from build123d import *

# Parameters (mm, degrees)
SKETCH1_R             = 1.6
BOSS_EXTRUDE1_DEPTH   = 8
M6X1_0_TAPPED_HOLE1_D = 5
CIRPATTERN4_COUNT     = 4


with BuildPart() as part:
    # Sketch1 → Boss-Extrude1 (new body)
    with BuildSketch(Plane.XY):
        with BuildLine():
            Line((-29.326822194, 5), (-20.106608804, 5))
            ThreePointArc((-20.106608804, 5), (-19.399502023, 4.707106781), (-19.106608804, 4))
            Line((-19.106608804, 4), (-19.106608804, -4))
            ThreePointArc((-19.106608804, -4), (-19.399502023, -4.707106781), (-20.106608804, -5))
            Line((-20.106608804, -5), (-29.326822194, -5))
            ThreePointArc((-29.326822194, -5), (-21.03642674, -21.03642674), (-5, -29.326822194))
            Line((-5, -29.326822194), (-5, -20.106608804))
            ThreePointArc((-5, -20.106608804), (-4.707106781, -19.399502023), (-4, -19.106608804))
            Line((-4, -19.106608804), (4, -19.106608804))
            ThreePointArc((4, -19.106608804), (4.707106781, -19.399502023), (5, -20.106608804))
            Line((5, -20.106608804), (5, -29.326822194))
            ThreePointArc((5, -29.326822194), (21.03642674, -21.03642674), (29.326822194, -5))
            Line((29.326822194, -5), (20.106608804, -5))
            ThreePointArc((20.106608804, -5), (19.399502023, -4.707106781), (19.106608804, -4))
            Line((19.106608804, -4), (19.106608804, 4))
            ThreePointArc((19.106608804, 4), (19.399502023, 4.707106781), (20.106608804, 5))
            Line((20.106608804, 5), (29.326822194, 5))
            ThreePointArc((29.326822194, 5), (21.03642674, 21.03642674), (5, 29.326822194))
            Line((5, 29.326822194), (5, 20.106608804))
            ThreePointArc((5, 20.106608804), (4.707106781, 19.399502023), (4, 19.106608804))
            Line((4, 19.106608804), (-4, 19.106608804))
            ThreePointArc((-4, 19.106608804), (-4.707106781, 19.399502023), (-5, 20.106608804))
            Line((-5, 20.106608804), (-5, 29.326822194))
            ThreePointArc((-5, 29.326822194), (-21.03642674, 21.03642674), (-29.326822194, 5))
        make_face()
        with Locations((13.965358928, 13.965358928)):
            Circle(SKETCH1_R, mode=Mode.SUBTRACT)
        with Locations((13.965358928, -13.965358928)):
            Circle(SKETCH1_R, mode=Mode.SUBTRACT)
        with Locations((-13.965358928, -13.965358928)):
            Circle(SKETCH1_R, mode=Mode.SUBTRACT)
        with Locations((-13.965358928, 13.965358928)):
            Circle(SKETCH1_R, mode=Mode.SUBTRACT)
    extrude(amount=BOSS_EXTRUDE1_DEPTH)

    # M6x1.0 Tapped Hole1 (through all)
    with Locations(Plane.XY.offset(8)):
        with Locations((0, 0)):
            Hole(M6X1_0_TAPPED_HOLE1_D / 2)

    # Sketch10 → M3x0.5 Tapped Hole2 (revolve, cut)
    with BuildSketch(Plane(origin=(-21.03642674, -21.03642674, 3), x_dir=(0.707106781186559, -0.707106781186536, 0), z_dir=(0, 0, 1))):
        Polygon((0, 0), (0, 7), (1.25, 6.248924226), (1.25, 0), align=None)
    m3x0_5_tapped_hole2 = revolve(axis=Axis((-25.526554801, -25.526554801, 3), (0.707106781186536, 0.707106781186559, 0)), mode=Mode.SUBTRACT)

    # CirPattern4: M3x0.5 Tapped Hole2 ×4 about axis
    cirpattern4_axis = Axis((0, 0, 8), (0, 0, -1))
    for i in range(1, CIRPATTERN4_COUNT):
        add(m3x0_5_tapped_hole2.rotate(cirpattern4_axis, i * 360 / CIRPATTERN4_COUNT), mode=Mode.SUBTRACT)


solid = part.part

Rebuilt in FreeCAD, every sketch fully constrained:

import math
import FreeCAD as App
import Part
import Sketcher
from FreeCAD import Vector
Q = App.Units.Quantity

doc = App.newDocument("Part")
body = doc.addObject("PartDesign::Body", "Body")

# Sketch on XY plane
sketch1 = body.newObject("Sketcher::SketchObject", "Sketch")
sketch1.AttachmentSupport = (doc.getObject("XY_Plane"), [""])
sketch1.MapMode = "FlatFace"
sketch1.addGeometry([
    Part.LineSegment(Vector(-29.3, 5, 0), Vector(-20.1, 5, 0)),  # 0
    Part.ArcOfCircle(Part.Circle(Vector(-20.1, 4, 0), Vector(0, 0, 1), 1), math.radians(0), math.radians(90)),  # 1
    Part.LineSegment(Vector(-19.1, 4, 0), Vector(-19.1, -4, 0)),  # 2
    Part.ArcOfCircle(Part.Circle(Vector(-20.1, -4, 0), Vector(0, 0, 1), 1), math.radians(-90), math.radians(0)),  # 3
    Part.LineSegment(Vector(-20.1, -5, 0), Vector(-29.3, -5, 0)),  # 4
    Part.ArcOfCircle(Part.Circle(Vector(0, 0, 0), Vector(0, 0, 1), 29.8), math.radians(-170), math.radians(-100)),  # 5
    Part.LineSegment(Vector(-5, -29.3, 0), Vector(-5, -20.1, 0)),  # 6
    Part.ArcOfCircle(Part.Circle(Vector(-4, -20.1, 0), Vector(0, 0, 1), 1), math.radians(90), math.radians(180)),  # 7
    Part.LineSegment(Vector(-4, -19.1, 0), Vector(4, -19.1, 0)),  # 8
    Part.ArcOfCircle(Part.Circle(Vector(4, -20.1, 0), Vector(0, 0, 1), 1), math.radians(0), math.radians(90)),  # 9
    Part.LineSegment(Vector(5, -20.1, 0), Vector(5, -29.3, 0)),  # 10
    Part.ArcOfCircle(Part.Circle(Vector(0, 0, 0), Vector(0, 0, 1), 29.8), math.radians(-80), math.radians(-10)),  # 11
    Part.LineSegment(Vector(29.3, -5, 0), Vector(20.1, -5, 0)),  # 12
    Part.ArcOfCircle(Part.Circle(Vector(20.1, -4, 0), Vector(0, 0, 1), 1), math.radians(-180), math.radians(-90)),  # 13
    Part.LineSegment(Vector(19.1, -4, 0), Vector(19.1, 4, 0)),  # 14
    Part.ArcOfCircle(Part.Circle(Vector(20.1, 4, 0), Vector(0, 0, 1), 1), math.radians(90), math.radians(180)),  # 15
    Part.LineSegment(Vector(20.1, 5, 0), Vector(29.3, 5, 0)),  # 16
    Part.ArcOfCircle(Part.Circle(Vector(0, 0, 0), Vector(0, 0, 1), 29.8), math.radians(10), math.radians(80)),  # 17
    Part.LineSegment(Vector(5, 29.3, 0), Vector(5, 20.1, 0)),  # 18
    Part.ArcOfCircle(Part.Circle(Vector(4, 20.1, 0), Vector(0, 0, 1), 1), math.radians(-90), math.radians(0)),  # 19
    Part.LineSegment(Vector(4, 19.1, 0), Vector(-4, 19.1, 0)),  # 20
    Part.ArcOfCircle(Part.Circle(Vector(-4, 20.1, 0), Vector(0, 0, 1), 1), math.radians(-180), math.radians(-90)),  # 21
    Part.LineSegment(Vector(-5, 20.1, 0), Vector(-5, 29.3, 0)),  # 22
    Part.ArcOfCircle(Part.Circle(Vector(0, 0, 0), Vector(0, 0, 1), 29.8), math.radians(100), math.radians(170)),  # 23
    Part.Circle(Vector(-14, -14, 0), Vector(0, 0, 1), 1.6),  # 24
    Part.Circle(Vector(14, -14, 0), Vector(0, 0, 1), 1.6),  # 25
    Part.Circle(Vector(-14, 14, 0), Vector(0, 0, 1), 1.6),  # 26
    Part.Circle(Vector(14, 14, 0), Vector(0, 0, 1), 1.6),  # 27
], False)
sketch1.addConstraint([
    Sketcher.Constraint("Tangent", 0, 2, 1, 2),
    Sketcher.Constraint("Tangent", 1, 1, 2, 1),
    Sketcher.Constraint("Tangent", 2, 2, 3, 2),
    Sketcher.Constraint("Tangent", 3, 1, 4, 1),
    Sketcher.Constraint("Coincident", 4, 2, 5, 1),
    Sketcher.Constraint("Coincident", 5, 2, 6, 1),
    Sketcher.Constraint("Tangent", 6, 2, 7, 2),
    Sketcher.Constraint("Tangent", 7, 1, 8, 1),
    Sketcher.Constraint("Tangent", 8, 2, 9, 2),
    Sketcher.Constraint("Tangent", 9, 1, 10, 1),
    Sketcher.Constraint("Coincident", 10, 2, 11, 1),
    Sketcher.Constraint("Coincident", 11, 2, 12, 1),
    Sketcher.Constraint("Tangent", 12, 2, 13, 2),
    Sketcher.Constraint("Tangent", 13, 1, 14, 1),
    Sketcher.Constraint("Tangent", 14, 2, 15, 2),
    Sketcher.Constraint("Tangent", 15, 1, 16, 1),
    Sketcher.Constraint("Coincident", 16, 2, 17, 1),
    Sketcher.Constraint("Coincident", 17, 2, 18, 1),
    Sketcher.Constraint("Tangent", 18, 2, 19, 2),
    Sketcher.Constraint("Tangent", 19, 1, 20, 1),
    Sketcher.Constraint("Tangent", 20, 2, 21, 2),
    Sketcher.Constraint("Tangent", 21, 1, 22, 1),
    Sketcher.Constraint("Coincident", 22, 2, 23, 1),
    Sketcher.Constraint("Coincident", 23, 2, 0, 1),
    Sketcher.Constraint("Horizontal", 0),
    Sketcher.Constraint("Vertical", 2),
    Sketcher.Constraint("Horizontal", 4),
    Sketcher.Constraint("Vertical", 6),
    Sketcher.Constraint("Horizontal", 8),
    Sketcher.Constraint("Vertical", 10),
    Sketcher.Constraint("Horizontal", 12),
    Sketcher.Constraint("Vertical", 14),
    Sketcher.Constraint("Horizontal", 16),
    Sketcher.Constraint("Vertical", 18),
    Sketcher.Constraint("Horizontal", 20),
    Sketcher.Constraint("Vertical", 22),
    Sketcher.Constraint("Coincident", 5, 3, -1, 1),
    Sketcher.Constraint("Coincident", 11, 3, -1, 1),
    Sketcher.Constraint("Coincident", 17, 3, -1, 1),
    Sketcher.Constraint("Coincident", 23, 3, -1, 1),
    Sketcher.Constraint("Equal", 1, 3),
    Sketcher.Constraint("Equal", 3, 7),
    Sketcher.Constraint("Equal", 7, 9),
    Sketcher.Constraint("Equal", 5, 11),
    Sketcher.Constraint("Equal", 9, 13),
    Sketcher.Constraint("Equal", 13, 15),
    Sketcher.Constraint("Equal", 11, 17),
    Sketcher.Constraint("Equal", 15, 19),
    Sketcher.Constraint("Equal", 19, 21),
    Sketcher.Constraint("Equal", 17, 23),
    Sketcher.Constraint("Equal", 24, 25),
    Sketcher.Constraint("Equal", 25, 26),
    Sketcher.Constraint("Equal", 26, 27),
    Sketcher.Constraint("Symmetric", 1, 3, 13, 3, -1, 1),
    Sketcher.Constraint("Symmetric", 7, 3, 19, 3, -1, 1),
    Sketcher.Constraint("Symmetric", 25, 3, 26, 3, -1, 1),
    Sketcher.Constraint("Symmetric", 24, 3, 27, 3, -1, 1),
    Sketcher.Constraint("Symmetric", 24, 3, 25, 3, -2),
    Sketcher.Constraint("Horizontal", 3, 3, 13, 3),
    Sketcher.Constraint("Horizontal", 1, 3, 15, 3),
    Sketcher.Constraint("Horizontal", 5, 2, 10, 2),
    Sketcher.Constraint("Horizontal", 17, 2, 22, 2),
    Sketcher.Constraint("Equal", 20, 2),
    Sketcher.Constraint("Equal", 16, 6),
    Sketcher.Constraint("Radius", 1, Q("1 mm")),
    Sketcher.Constraint("Diameter", 24, Q("3.2 mm")),
    Sketcher.Constraint("DistanceX", 8, 1, 8, 2, Q("8 mm")),
    Sketcher.Constraint("Radius", 5, Q("29.75 mm")),
    Sketcher.Constraint("DistanceX", 0, 1, 0, 2, Q("9.220213 mm")),
    Sketcher.Constraint("DistanceX", 24, 3, -1, 1, Q("13.965359 mm")),
    Sketcher.Constraint("DistanceY", 24, 3, -1, 1, Q("13.965359 mm")),
])
pad1 = body.newObject("PartDesign::Pad", "Pad")
pad1.Profile = sketch1
pad1.Length = 8

# Sketch on XY plane
sketch2 = body.newObject("Sketcher::SketchObject", "Sketch001")
sketch2.AttachmentSupport = (doc.getObject("XY_Plane"), [""])
sketch2.MapMode = "FlatFace"
sketch2.AttachmentOffset = App.Placement(Vector(0, 0, 8), App.Rotation())
sketch2.addGeometry(Part.Circle(Vector(0, 0, 0), Vector(0, 0, 1), 2.5), False)
sketch2.addConstraint([
    Sketcher.Constraint("Coincident", 0, 3, -1, 1),
    Sketcher.Constraint("Diameter", 0, Q("5 mm")),
])
doc.recompute()
hole = body.newObject("PartDesign::Hole", "Hole")
hole.Profile = sketch2
hole.ThreadType = "None"
hole.Diameter = 5
hole.DepthType = "ThroughAll"

# Sketch on XY plane
sketch3 = body.newObject("Sketcher::SketchObject", "Sketch002")
sketch3.AttachmentSupport = (doc.getObject("XY_Plane"), [""])
sketch3.MapMode = "FlatFace"
sketch3.AttachmentOffset = App.Placement(Vector(0, 0, 3), App.Rotation())
sketch3.addGeometry([
    Part.LineSegment(Vector(-16.1, -16.1, 0), Vector(-21, -21, 0)),
    Part.LineSegment(Vector(-21, -21, 0), Vector(-20.2, -21.9, 0)),
    Part.LineSegment(Vector(-20.2, -21.9, 0), Vector(-15.7, -17.5, 0)),
    Part.LineSegment(Vector(-15.7, -17.5, 0), Vector(-16.1, -16.1, 0)),
], False)
sketch3.addGeometry(Part.LineSegment(Vector(-21, -21, 0), Vector(-16.1, -16.1, 0)), True)  # axis
sketch3.addConstraint([
    Sketcher.Constraint("Coincident", 0, 2, 1, 1),
    Sketcher.Constraint("Coincident", 1, 2, 2, 1),
    Sketcher.Constraint("Coincident", 2, 2, 3, 1),
    Sketcher.Constraint("Coincident", 3, 2, 0, 1),
    Sketcher.Constraint("Coincident", 4, 1, 0, 2),
    Sketcher.Constraint("Coincident", 4, 2, 3, 2),
    Sketcher.Constraint("Perpendicular", 0, 1),
    Sketcher.Constraint("Perpendicular", 1, 2),
    Sketcher.Constraint("Angle", 0, Q("-135 deg")),
    Sketcher.Constraint("Angle", 3, Q("104 deg")),
    Sketcher.Constraint("Distance", 0, Q("7 mm")),
    Sketcher.Constraint("Distance", 1, Q("1.25 mm")),
    Sketcher.Constraint("DistanceY", 1, 2, -1, 1, Q("21.92031 mm")),
    Sketcher.Constraint("DistanceX", 3, 2, -1, 1, Q("16.086679 mm")),
])
groove = body.newObject("PartDesign::Groove", "Groove")
groove.Profile = sketch3
groove.ReferenceAxis = (sketch3, ["Axis0"])
groove.Angle = 360
doc.recompute()

polarpattern = body.newObject("PartDesign::PolarPattern", "PolarPattern")
polarpattern.Originals = [groove]
polarpattern.Axis = (doc.getObject("Z_Axis"), [""])
polarpattern.Angle = 360
polarpattern.Occurrences = 4
body.Tip = polarpattern

doc.recompute()
